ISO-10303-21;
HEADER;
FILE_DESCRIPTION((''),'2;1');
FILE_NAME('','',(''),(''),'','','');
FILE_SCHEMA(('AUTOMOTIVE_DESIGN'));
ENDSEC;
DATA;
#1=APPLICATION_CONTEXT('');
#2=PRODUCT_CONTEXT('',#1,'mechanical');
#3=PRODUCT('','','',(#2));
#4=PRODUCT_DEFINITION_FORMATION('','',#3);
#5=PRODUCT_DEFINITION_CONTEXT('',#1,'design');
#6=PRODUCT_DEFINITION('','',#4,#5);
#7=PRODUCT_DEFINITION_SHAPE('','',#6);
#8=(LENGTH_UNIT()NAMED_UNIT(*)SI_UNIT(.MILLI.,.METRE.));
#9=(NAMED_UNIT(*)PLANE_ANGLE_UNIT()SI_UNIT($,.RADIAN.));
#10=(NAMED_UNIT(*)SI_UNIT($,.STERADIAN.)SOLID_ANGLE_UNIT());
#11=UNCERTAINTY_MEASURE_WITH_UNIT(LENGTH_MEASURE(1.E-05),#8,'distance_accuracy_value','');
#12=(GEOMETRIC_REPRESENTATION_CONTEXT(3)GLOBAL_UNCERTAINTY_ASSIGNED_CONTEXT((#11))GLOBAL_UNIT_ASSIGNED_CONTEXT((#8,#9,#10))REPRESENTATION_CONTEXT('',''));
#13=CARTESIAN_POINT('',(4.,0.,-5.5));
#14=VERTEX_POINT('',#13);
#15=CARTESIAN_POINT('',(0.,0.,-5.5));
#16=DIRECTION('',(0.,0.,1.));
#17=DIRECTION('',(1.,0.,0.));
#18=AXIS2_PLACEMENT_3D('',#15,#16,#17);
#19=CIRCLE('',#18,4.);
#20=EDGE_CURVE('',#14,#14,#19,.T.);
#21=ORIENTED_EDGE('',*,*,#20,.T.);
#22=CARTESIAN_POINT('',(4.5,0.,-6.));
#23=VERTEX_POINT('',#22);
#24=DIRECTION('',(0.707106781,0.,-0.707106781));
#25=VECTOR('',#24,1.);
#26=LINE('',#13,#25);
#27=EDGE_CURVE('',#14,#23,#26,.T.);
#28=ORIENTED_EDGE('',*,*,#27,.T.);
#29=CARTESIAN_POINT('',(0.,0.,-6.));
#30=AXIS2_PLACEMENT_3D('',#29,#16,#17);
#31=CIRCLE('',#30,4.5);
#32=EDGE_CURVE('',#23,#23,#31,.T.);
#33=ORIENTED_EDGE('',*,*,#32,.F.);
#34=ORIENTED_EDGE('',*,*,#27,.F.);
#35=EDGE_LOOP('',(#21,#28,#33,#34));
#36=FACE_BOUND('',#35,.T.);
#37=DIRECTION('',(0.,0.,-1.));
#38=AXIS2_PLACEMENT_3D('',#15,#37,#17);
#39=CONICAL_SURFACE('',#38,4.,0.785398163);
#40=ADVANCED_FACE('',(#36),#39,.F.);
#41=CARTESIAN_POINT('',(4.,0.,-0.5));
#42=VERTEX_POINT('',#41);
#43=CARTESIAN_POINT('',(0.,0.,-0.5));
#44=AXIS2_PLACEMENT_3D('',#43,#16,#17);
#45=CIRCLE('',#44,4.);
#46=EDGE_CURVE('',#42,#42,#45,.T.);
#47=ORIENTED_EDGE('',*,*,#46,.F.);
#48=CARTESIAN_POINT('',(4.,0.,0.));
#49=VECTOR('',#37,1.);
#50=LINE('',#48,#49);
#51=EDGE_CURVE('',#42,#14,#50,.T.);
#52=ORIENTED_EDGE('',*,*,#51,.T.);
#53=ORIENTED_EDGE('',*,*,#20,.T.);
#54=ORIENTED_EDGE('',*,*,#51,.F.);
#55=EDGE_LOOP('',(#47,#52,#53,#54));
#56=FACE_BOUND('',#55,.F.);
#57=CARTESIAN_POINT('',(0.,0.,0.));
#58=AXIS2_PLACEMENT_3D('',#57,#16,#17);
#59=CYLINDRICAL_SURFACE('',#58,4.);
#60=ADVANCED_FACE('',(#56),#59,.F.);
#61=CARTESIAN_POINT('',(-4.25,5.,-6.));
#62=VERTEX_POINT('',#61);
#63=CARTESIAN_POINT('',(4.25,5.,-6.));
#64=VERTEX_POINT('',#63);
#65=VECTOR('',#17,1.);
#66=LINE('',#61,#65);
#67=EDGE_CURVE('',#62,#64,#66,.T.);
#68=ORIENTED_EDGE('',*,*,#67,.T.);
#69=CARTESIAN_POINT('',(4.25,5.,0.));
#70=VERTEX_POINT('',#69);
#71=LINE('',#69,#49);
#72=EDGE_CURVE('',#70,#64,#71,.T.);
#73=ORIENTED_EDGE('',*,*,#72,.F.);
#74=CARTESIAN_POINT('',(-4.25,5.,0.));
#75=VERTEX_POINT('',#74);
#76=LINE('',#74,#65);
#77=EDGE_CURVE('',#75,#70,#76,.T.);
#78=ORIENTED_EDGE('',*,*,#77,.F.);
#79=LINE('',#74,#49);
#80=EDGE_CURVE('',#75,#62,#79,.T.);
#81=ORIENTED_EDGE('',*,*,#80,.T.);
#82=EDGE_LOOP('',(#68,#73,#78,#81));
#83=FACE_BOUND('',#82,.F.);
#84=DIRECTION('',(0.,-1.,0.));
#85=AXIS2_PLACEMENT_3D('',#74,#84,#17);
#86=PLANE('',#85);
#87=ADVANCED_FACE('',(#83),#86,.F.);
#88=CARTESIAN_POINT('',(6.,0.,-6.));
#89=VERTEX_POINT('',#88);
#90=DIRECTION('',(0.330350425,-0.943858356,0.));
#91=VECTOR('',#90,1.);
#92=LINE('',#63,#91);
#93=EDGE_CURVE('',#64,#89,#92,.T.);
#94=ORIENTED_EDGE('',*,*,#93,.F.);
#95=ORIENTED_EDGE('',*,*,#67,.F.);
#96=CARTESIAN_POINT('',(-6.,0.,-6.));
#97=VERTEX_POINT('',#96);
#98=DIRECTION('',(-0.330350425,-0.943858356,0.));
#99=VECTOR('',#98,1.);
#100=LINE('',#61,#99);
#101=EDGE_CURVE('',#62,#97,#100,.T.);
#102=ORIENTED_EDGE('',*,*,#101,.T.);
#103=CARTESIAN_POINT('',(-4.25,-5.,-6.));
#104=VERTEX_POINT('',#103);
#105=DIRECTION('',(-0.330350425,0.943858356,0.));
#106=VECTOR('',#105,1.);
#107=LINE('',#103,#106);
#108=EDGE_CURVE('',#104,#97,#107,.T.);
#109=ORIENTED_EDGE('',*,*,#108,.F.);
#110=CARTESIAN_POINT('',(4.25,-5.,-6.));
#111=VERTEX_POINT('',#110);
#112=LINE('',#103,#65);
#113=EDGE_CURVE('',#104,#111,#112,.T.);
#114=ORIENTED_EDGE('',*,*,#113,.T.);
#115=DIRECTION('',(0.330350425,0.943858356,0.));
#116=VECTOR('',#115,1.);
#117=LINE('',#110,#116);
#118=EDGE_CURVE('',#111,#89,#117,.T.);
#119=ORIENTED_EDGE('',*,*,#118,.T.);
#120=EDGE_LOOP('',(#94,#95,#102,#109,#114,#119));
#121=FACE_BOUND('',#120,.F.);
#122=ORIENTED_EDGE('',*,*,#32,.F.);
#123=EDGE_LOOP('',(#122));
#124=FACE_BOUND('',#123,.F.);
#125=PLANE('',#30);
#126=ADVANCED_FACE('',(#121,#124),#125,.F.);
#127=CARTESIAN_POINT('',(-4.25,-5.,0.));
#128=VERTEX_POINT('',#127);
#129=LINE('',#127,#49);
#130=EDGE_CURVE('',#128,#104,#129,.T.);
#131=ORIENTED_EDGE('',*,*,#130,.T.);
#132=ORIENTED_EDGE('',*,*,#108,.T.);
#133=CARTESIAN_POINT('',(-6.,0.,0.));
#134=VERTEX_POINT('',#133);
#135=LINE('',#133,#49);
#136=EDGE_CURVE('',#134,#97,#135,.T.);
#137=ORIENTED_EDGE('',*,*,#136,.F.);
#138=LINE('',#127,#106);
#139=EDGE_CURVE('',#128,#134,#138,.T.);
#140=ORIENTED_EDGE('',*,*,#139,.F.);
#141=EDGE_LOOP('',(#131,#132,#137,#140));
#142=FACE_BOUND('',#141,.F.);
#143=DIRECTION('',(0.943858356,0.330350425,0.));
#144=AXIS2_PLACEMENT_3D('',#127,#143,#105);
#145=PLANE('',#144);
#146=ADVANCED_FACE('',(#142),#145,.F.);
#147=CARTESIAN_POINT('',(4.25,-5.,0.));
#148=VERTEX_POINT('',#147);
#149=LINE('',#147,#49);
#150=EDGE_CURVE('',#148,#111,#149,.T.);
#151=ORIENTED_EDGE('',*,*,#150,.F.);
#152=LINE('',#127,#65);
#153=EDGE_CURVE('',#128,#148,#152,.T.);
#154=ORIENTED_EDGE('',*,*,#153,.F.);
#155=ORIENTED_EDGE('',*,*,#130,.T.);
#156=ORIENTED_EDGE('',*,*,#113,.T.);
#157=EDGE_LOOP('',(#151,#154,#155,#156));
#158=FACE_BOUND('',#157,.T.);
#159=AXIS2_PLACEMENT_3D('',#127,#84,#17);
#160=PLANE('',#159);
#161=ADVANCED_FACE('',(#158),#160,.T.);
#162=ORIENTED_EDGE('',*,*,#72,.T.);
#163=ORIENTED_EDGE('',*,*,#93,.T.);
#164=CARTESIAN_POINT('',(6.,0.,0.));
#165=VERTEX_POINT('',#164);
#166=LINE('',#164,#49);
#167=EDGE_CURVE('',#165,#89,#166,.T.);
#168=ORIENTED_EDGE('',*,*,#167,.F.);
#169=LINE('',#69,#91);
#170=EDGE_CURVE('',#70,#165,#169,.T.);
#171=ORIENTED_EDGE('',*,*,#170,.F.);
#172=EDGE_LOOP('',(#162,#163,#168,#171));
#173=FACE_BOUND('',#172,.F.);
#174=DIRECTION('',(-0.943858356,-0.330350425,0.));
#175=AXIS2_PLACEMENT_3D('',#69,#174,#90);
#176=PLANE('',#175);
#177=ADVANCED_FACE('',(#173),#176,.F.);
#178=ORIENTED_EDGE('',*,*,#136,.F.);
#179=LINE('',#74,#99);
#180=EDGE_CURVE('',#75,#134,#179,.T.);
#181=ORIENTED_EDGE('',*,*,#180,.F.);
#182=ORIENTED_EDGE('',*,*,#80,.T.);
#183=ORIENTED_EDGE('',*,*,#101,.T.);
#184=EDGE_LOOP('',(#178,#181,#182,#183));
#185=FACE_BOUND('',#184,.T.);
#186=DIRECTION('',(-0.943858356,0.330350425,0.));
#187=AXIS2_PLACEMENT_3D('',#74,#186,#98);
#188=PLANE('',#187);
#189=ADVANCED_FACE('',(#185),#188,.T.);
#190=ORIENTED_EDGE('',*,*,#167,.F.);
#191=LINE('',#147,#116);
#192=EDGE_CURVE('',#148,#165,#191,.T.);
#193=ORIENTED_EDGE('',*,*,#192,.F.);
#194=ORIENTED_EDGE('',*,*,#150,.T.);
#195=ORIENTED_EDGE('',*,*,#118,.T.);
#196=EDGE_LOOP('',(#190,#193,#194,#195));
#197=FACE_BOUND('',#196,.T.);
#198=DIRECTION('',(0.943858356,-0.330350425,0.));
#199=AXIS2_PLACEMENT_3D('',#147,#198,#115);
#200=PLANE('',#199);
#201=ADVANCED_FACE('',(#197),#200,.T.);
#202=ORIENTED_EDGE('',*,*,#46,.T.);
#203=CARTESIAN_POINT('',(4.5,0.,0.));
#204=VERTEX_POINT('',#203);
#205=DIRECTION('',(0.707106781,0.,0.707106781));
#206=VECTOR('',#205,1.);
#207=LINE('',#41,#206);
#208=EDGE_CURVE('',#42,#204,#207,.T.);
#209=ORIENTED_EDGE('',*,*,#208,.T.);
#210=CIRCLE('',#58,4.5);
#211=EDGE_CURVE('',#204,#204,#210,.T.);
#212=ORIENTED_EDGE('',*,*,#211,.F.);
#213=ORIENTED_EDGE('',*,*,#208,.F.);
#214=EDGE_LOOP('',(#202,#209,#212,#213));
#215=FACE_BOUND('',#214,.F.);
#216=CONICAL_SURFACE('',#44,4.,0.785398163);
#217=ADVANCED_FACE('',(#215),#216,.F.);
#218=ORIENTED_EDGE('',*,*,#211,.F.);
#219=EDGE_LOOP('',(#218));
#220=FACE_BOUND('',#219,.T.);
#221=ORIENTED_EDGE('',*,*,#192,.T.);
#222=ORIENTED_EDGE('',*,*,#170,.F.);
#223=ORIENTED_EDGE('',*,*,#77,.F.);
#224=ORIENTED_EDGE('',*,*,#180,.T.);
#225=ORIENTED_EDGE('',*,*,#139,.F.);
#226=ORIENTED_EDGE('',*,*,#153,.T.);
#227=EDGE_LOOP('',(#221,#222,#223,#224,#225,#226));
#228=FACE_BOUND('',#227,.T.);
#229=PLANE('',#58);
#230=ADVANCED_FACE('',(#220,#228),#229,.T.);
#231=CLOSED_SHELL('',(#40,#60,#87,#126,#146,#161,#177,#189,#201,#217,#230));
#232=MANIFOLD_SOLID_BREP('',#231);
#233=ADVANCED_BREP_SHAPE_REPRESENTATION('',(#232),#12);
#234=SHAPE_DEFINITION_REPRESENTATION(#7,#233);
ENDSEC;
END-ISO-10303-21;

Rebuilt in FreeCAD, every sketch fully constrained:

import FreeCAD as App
import Part
import Sketcher


def edges_at(feature, points):
    """Names of the edges that pass closest to the given points."""
    edges = feature.Shape.Edges
    near = lambda p: min(range(len(edges)), key=lambda i: edges[i].distToShape(Part.Vertex(*p))[0])
    return sorted({f"Edge{near(p) + 1}" for p in points})


def add_polygon(sketch, points):
    """Adds a closed chain of lines whose ends are joined by coincident constraints."""
    first, n = sketch.GeometryCount, len(points)
    for a, b in zip(points, points[1:] + points[:1]):
        sketch.addGeometry(Part.LineSegment(App.Vector(*a, 0), App.Vector(*b, 0)), False)
    for i in range(n):
        sketch.addConstraint(Sketcher.Constraint("Coincident", first + i, 2, first + (i + 1) % n, 1))

doc = App.newDocument("Part")
body = doc.addObject("PartDesign::Body", "Body")

sketch1 = body.newObject("Sketcher::SketchObject", "Sketch")
sketch1.AttachmentSupport = (doc.getObject("XY_Plane"), [""])
sketch1.MapMode = "FlatFace"
add_polygon(sketch1, [(4.2, 5), (-4.2, 5), (-6, 0), (-4.2, -5), (4.2, -5), (6, 0)])
sketch1.addGeometry(Part.Circle(App.Vector(0, 0, 0), App.Vector(0, 0, 1), 4), False)
sketch1.addConstraint([
    Sketcher.Constraint("Horizontal", 0),
    Sketcher.Constraint("Horizontal", 3),
    Sketcher.Constraint("Coincident", 6, 3, -1, 1),
    Sketcher.Constraint("Symmetric", 0, 2, 3, 2, -1, 1),
    Sketcher.Constraint("Symmetric", 1, 2, 4, 2, -1, 1),
    Sketcher.Constraint("PointOnObject", 1, 2, -1),
    Sketcher.Constraint("Parallel", 2, 5),
    Sketcher.Constraint("Vertical", 0, 2, 2, 2),
    Sketcher.Constraint("Diameter", 6, 8.0),
    Sketcher.Constraint("DistanceX", 0, 2, 0, 1, 8.5),
    Sketcher.Constraint("DistanceY", -1, 1, 0, 2, 5.0),
    Sketcher.Constraint("DistanceX", 1, 2, -1, 1, 6.0),
])
pad1 = body.newObject("PartDesign::Pad", "Pad")
pad1.Profile = sketch1
pad1.Length = 6
pad1.Reversed = True
doc.recompute()

chamfer = body.newObject("PartDesign::Chamfer", "Chamfer")
chamfer.Base = (pad1, edges_at(pad1, [(-4, 0, 0)]))
chamfer.Size = 0.5
doc.recompute()

chamfer2 = body.newObject("PartDesign::Chamfer", "Chamfer001")
chamfer2.Base = (chamfer, edges_at(chamfer, [(-4, 0, -6)]))
chamfer2.Size = 0.5

doc.recompute()
